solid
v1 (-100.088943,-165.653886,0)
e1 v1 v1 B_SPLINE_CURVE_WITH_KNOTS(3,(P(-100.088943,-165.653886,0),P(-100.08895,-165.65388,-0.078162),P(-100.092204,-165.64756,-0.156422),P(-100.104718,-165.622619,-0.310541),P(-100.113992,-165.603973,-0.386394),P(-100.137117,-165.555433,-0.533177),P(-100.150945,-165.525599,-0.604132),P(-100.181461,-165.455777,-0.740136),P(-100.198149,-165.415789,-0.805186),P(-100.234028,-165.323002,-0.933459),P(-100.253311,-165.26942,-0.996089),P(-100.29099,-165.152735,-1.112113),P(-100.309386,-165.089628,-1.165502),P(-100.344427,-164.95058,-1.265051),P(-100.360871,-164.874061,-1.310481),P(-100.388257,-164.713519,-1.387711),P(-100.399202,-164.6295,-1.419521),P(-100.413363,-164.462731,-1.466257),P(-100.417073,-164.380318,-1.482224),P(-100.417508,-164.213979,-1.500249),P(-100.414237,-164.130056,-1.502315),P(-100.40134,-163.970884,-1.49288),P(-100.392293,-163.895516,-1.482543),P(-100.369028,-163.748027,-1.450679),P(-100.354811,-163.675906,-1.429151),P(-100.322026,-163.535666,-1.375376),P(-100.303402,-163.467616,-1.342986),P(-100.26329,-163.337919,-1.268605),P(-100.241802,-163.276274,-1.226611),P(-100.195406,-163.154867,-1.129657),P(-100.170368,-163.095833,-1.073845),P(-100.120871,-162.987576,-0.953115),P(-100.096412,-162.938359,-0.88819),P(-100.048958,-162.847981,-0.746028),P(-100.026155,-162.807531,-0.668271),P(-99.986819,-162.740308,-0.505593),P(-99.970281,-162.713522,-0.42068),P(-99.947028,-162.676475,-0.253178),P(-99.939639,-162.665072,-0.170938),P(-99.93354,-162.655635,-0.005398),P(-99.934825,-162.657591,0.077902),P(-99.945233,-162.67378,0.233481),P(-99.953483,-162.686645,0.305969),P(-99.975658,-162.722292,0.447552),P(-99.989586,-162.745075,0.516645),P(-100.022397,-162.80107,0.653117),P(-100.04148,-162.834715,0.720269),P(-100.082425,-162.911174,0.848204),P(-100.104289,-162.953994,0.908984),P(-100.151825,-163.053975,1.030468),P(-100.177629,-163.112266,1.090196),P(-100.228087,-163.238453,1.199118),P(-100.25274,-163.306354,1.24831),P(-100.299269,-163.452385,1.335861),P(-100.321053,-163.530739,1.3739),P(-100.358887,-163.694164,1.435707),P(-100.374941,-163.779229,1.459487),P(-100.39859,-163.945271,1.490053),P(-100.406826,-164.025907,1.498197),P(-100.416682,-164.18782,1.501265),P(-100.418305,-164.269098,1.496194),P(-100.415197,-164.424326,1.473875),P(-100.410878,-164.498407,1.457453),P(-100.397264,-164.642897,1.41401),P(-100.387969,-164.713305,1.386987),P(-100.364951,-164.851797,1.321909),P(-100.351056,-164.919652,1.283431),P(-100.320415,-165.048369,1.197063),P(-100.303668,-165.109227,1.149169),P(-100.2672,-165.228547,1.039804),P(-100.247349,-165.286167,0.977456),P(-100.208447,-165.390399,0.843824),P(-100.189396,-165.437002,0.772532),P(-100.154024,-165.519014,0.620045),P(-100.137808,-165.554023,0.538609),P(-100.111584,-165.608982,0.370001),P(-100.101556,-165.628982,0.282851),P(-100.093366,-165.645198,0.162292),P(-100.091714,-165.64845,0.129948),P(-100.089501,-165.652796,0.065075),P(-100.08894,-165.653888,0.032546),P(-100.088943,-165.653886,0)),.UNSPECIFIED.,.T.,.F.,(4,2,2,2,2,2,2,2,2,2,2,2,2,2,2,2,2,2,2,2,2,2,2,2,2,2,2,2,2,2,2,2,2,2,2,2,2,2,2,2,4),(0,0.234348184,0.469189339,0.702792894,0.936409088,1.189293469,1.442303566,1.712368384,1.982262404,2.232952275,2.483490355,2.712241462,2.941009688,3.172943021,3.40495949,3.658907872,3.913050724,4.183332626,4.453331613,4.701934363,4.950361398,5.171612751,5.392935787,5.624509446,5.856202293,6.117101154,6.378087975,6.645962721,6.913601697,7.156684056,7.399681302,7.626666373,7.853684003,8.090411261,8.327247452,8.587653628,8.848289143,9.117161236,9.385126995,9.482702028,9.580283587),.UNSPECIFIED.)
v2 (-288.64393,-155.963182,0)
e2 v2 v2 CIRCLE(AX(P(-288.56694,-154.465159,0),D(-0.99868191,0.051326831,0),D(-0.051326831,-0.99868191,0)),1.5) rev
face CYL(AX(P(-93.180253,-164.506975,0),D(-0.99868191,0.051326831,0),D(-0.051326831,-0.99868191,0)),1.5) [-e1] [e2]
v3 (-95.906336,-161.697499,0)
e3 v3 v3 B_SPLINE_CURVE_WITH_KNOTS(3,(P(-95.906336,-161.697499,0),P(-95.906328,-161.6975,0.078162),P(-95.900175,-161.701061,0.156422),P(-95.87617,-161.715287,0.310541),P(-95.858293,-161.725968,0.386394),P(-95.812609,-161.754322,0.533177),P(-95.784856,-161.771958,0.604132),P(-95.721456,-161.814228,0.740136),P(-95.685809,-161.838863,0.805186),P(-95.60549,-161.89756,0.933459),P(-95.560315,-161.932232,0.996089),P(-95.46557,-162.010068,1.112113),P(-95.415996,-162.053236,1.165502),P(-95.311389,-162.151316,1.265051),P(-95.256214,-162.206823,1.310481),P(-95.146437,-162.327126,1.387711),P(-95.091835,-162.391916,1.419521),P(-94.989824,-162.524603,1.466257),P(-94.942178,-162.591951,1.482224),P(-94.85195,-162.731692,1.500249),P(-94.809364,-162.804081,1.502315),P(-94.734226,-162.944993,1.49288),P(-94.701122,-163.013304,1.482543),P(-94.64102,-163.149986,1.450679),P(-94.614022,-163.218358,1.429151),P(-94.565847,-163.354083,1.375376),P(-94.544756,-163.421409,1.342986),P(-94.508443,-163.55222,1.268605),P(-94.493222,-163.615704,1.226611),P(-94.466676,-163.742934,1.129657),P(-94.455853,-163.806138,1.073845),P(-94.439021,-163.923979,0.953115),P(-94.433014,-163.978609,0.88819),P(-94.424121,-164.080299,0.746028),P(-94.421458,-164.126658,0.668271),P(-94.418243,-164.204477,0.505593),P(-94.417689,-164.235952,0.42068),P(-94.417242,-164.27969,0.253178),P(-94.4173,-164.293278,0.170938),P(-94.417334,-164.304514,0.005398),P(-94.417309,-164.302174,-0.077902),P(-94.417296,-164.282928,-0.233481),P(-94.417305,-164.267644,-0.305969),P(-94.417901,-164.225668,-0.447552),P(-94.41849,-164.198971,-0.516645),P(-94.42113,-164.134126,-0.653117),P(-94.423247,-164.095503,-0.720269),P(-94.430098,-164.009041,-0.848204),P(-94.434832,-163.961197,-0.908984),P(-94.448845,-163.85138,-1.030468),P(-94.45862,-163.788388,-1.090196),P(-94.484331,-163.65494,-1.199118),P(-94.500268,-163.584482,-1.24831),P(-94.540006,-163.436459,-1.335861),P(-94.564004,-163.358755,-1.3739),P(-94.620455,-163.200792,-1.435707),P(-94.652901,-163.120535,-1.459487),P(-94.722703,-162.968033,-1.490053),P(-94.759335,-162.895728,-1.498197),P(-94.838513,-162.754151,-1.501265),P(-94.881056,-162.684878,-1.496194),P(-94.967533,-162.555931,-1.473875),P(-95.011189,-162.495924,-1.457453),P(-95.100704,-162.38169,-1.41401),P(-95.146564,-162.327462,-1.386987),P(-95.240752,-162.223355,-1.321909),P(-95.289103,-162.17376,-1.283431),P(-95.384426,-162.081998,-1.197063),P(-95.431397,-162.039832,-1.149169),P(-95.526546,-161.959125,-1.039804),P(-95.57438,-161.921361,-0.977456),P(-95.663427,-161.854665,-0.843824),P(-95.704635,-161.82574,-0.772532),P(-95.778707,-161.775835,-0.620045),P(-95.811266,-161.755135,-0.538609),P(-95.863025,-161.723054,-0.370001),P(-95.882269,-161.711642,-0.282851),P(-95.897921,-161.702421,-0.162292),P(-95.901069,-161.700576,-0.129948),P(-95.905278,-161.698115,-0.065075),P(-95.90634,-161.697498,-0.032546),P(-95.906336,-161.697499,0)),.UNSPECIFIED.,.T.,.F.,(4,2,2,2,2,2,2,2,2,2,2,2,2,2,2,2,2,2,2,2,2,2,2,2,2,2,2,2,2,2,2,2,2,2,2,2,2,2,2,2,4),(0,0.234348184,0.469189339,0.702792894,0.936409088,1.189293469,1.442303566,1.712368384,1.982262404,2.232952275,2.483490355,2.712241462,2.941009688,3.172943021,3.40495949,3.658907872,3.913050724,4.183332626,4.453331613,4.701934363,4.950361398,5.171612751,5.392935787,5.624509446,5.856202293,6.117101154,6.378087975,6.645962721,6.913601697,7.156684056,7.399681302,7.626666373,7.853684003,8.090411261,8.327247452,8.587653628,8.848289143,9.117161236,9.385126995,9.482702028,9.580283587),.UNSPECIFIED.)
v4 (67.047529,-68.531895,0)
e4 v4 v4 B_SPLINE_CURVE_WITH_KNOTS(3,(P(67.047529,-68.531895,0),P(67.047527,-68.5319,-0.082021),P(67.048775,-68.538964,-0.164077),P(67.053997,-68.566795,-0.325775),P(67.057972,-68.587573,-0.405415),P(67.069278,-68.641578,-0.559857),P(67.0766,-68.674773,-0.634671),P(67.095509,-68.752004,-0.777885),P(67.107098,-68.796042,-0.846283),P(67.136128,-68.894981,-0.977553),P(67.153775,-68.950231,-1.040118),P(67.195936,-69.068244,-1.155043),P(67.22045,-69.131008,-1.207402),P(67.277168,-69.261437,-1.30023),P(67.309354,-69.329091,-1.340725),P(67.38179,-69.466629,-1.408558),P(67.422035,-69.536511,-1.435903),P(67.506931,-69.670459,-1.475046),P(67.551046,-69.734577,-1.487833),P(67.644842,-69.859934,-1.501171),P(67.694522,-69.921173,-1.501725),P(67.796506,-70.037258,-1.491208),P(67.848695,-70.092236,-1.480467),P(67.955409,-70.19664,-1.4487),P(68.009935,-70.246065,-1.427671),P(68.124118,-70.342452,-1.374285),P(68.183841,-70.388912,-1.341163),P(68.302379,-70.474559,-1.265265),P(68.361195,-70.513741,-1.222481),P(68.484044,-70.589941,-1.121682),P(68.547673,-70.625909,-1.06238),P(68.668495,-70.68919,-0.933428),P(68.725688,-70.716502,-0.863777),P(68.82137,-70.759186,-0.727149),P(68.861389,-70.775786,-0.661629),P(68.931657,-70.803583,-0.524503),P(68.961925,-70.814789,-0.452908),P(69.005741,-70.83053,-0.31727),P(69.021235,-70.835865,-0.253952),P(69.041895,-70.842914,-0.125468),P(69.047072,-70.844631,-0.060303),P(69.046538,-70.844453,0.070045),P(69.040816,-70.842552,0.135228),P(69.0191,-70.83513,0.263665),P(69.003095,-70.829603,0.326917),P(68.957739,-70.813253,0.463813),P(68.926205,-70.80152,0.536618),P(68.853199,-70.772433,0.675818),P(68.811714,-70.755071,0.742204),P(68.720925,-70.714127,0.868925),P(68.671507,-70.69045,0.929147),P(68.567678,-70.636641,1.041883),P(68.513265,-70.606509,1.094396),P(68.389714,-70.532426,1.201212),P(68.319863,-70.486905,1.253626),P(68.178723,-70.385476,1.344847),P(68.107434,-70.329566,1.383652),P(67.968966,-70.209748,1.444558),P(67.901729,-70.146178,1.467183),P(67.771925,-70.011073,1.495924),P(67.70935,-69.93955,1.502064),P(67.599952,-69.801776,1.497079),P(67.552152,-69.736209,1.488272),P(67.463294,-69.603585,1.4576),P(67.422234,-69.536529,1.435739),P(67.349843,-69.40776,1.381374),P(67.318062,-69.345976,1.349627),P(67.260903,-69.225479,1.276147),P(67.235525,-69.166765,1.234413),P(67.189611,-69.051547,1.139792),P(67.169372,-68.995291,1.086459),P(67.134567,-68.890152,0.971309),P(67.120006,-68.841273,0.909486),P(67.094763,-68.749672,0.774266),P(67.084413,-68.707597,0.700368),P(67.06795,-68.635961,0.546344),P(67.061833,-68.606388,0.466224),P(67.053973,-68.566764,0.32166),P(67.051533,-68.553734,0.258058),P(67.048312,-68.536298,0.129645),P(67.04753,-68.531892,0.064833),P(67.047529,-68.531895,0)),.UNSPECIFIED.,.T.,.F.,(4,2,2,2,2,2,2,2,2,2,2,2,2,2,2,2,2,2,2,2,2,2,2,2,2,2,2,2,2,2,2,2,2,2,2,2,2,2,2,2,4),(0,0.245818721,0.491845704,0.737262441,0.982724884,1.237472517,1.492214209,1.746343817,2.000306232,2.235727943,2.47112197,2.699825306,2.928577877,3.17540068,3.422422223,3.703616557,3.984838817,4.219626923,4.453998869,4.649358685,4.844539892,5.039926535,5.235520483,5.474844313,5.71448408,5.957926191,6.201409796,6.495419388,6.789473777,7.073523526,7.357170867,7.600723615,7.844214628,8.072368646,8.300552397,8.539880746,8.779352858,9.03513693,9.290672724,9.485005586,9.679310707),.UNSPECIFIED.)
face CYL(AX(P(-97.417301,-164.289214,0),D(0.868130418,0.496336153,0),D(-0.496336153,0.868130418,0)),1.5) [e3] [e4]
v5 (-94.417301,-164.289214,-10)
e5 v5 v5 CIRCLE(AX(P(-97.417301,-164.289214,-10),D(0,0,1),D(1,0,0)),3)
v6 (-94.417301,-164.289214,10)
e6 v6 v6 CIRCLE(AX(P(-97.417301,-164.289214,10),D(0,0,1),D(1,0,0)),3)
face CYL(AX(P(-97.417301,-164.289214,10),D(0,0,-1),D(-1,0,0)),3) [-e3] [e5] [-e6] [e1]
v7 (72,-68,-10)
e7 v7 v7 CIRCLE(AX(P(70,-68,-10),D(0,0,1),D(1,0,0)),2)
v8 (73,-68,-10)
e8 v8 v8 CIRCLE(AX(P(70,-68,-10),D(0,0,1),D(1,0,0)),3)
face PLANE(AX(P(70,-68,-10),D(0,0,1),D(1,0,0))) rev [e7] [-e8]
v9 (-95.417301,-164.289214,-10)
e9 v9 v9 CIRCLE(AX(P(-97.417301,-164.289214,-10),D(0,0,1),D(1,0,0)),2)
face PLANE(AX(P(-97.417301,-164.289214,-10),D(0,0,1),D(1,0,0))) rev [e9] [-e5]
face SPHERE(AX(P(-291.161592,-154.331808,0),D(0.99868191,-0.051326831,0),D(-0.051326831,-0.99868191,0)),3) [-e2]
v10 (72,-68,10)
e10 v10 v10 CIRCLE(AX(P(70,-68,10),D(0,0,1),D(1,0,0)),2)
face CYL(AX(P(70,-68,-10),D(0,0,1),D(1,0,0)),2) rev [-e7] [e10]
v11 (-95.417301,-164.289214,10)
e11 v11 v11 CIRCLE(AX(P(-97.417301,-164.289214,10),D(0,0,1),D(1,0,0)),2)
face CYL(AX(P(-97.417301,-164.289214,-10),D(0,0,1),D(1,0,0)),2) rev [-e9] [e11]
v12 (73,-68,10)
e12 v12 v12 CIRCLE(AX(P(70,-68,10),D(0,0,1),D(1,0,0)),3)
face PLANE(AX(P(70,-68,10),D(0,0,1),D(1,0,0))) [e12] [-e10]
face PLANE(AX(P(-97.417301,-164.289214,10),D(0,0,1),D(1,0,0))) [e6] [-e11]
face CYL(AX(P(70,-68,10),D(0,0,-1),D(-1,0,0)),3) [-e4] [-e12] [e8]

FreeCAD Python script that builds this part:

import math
import FreeCAD as App
import Part
import Sketcher
from FreeCAD import Vector

doc = App.newDocument("Part")
params = doc.addObject("Spreadsheet::Sheet", "Params")
for row, (alias, value) in enumerate([
    ("sketch1_diameter", "3 mm"),
    ("sketch2_length", "194 mm"),
    ("sketch3_radius", "3 mm"),
    ("revolution_angle", "360 deg"),
    ("sketch4_diameter", "6 mm"),
    ("pad1_length", "20 mm"),
    ("sketch5_diameter", "4 mm"),
], start=1):
    params.set(f"A{row}", alias)
    params.set(f"B{row}", "=" + value)
    params.setAlias(f"B{row}", alias)

body = doc.addObject("PartDesign::Body", "Body")

sketch1 = body.newObject("Sketcher::SketchObject", "Sketch")
sketch1.Placement = App.Placement(Vector(-291.161592, -154.331808, 0), App.Rotation(Vector(-0.051326831, -0.99868191, 0), Vector(0, 0, -1.000000001), Vector(0.99868191, -0.051326831, 0), "ZXY"))
sketch1.addGeometry(Part.Circle(Vector(0, 0, 0), Vector(0, 0, 1), 1.5), False)
sketch1.addConstraint([
    Sketcher.Constraint("Coincident", 0, 3, -1, 1),
    Sketcher.Constraint("Diameter", 0, 3.0),
])
sketch1.setExpression("Constraints[1]", "Params.sketch1_diameter")

sketch2 = body.newObject("Sketcher::SketchObject", "Sketch001")
sketch2.AttachmentSupport = (doc.getObject("XY_Plane"), [""])
sketch2.MapMode = "FlatFace"
sketch2.addGeometry([
    Part.LineSegment(Vector(-291.161592, -154.331808, 0), Vector(-97.417301, -164.289214, 0)),
    Part.LineSegment(Vector(-97.417301, -164.289214, 0), Vector(71, -68, 0)),
], False)
sketch2.addConstraint([
    Sketcher.Constraint("Coincident", 0, 2, 1, 1),
    Sketcher.Constraint("Equal", 0, 1),
    Sketcher.Constraint("Distance", 0, 194.0),
    Sketcher.Constraint("DistanceX", -1, 1, 1, 2, 71.0),
    Sketcher.Constraint("DistanceY", 1, 2, -1, 1, 68.0),
    Sketcher.Constraint("DistanceX", 0, 2, -1, 1, 97.417301),
    Sketcher.Constraint("DistanceX", 0, 1, -1, 1, 291.161592),
])
sketch2.setExpression("Constraints[2]", "Params.sketch2_length")
doc.recompute()

additivepipe = body.newObject("PartDesign::AdditivePipe", "AdditivePipe")
additivepipe.Profile = sketch1
additivepipe.Spine = (sketch2, ["Edge1", "Edge2"])
additivepipe.Transition = "Right corner"

sketch3 = body.newObject("Sketcher::SketchObject", "Sketch002")
sketch3.AttachmentSupport = (doc.getObject("XY_Plane"), [""])
sketch3.MapMode = "FlatFace"
sketch3.addGeometry([
    Part.LineSegment(Vector(-294.157637, -154.177828, 0), Vector(-288.165546, -154.485789, 0)),
    Part.ArcOfCircle(Part.Circle(Vector(-291.161592, -154.331808, 0), Vector(0, 0, 1), 3), math.radians(-2.942104), math.radians(177.057896)),
], False)
sketch3.addGeometry(Part.LineSegment(Vector(-288.165546, -154.485789, 0), Vector(-294.157637, -154.177828, 0)), True)
sketch3.addConstraint([
    Sketcher.Constraint("Coincident", 0, 1, 1, 2),
    Sketcher.Constraint("Coincident", 1, 1, 0, 2),
    Sketcher.Constraint("Coincident", 2, 1, 1, 1),
    Sketcher.Constraint("Coincident", 2, 2, 0, 1),
    Sketcher.Constraint("Radius", 1, 3.0),
    Sketcher.Constraint("DistanceX", 1, 3, -1, 1, 291.161592),
    Sketcher.Constraint("DistanceY", 1, 3, -1, 1, 154.331808),
    Sketcher.Constraint("DistanceY", 1, 1, -1, 1, 154.485789),
    Sketcher.Constraint("DistanceY", 1, 3, 0, 1, 0.15398),
])
sketch3.setExpression("Constraints[4]", "Params.sketch3_radius")
revolution = body.newObject("PartDesign::Revolution", "Revolution")
revolution.Profile = sketch3
revolution.ReferenceAxis = (sketch3, ["Axis0"])
revolution.setExpression("Angle", "Params.revolution_angle")

sketch4 = body.newObject("Sketcher::SketchObject", "Sketch003")
sketch4.AttachmentSupport = (doc.getObject("XY_Plane"), [""])
sketch4.MapMode = "FlatFace"
sketch4.addGeometry([
    Part.Circle(Vector(-97.417301, -164.289214, 0), Vector(0, 0, 1), 3),
    Part.Circle(Vector(70, -68, 0), Vector(0, 0, 1), 3),
], False)
sketch4.addConstraint([
    Sketcher.Constraint("Equal", 0, 1),
    Sketcher.Constraint("Diameter", 0, 6.0),
    Sketcher.Constraint("DistanceX", -1, 1, 1, 3, 70.0),
    Sketcher.Constraint("DistanceY", 1, 3, -1, 1, 68.0),
    Sketcher.Constraint("DistanceX", 0, 3, -1, 1, 97.417301),
    Sketcher.Constraint("DistanceY", 0, 3, -1, 1, 164.289214),
])
sketch4.setExpression("Constraints[1]", "Params.sketch4_diameter")
pad1 = body.newObject("PartDesign::Pad", "Pad")
pad1.Profile = sketch4
pad1.setExpression("Length", "Params.pad1_length")
pad1.Midplane = True

sketch5 = body.newObject("Sketcher::SketchObject", "Sketch004")
sketch5.AttachmentSupport = (doc.getObject("XY_Plane"), [""])
sketch5.MapMode = "FlatFace"
sketch5.AttachmentOffset = App.Placement(Vector(0, 0, 10), App.Rotation())
sketch5.addGeometry([
    Part.Circle(Vector(-97.417301, -164.289214, 0), Vector(0, 0, 1), 2),
    Part.Circle(Vector(70, -68, 0), Vector(0, 0, 1), 2),
], False)
sketch5.addConstraint([
    Sketcher.Constraint("Equal", 0, 1),
    Sketcher.Constraint("Diameter", 0, 4.0),
    Sketcher.Constraint("DistanceX", -1, 1, 1, 3, 70.0),
    Sketcher.Constraint("DistanceY", 1, 3, -1, 1, 68.0),
    Sketcher.Constraint("DistanceX", 0, 3, -1, 1, 97.417301),
    Sketcher.Constraint("DistanceY", 0, 3, -1, 1, 164.289214),
])
sketch5.setExpression("Constraints[1]", "Params.sketch5_diameter")
pocket1 = body.newObject("PartDesign::Pocket", "Pocket")
pocket1.Profile = sketch5
pocket1.Type = "ThroughAll"

doc.recompute()
